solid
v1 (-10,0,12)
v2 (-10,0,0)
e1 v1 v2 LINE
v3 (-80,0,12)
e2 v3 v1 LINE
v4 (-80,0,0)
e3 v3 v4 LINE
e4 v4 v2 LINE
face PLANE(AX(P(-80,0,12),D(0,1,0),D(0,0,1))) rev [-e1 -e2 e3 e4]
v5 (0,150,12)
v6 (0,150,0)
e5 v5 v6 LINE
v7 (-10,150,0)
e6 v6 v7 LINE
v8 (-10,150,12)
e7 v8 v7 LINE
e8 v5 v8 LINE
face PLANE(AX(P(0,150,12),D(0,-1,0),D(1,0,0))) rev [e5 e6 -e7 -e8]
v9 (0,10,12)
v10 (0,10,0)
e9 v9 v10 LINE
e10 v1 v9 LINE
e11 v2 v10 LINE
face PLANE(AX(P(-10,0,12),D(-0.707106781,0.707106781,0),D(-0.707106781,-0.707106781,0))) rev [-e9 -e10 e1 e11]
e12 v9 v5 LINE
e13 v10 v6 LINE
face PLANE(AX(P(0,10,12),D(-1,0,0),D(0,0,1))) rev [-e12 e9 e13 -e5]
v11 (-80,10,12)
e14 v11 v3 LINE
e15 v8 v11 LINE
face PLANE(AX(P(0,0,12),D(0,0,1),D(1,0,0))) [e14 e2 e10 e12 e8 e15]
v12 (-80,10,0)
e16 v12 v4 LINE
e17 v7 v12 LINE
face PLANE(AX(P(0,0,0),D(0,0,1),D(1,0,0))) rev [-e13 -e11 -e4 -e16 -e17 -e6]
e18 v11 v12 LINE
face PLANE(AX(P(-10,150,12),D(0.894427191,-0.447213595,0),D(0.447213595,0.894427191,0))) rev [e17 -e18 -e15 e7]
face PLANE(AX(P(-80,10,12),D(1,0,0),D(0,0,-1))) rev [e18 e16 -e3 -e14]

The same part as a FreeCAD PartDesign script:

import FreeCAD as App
import Part
import Sketcher
from FreeCAD import Vector


def add_polygon(sketch, points):
    """Adds a closed chain of lines whose ends are joined by coincident constraints."""
    first, n = sketch.GeometryCount, len(points)
    for a, b in zip(points, points[1:] + points[:1]):
        sketch.addGeometry(Part.LineSegment(App.Vector(*a, 0), App.Vector(*b, 0)), False)
    for i in range(n):
        sketch.addConstraint(Sketcher.Constraint("Coincident", first + i, 2, first + (i + 1) % n, 1))

doc = App.newDocument("Part")
body = doc.addObject("PartDesign::Body", "Body")

# Sketch on XY plane
sketch1 = body.newObject("Sketcher::SketchObject", "Sketch")
sketch1.AttachmentSupport = (doc.getObject("XY_Plane"), [""])
sketch1.MapMode = "FlatFace"
add_polygon(sketch1, [(-80, 0), (-10, 0), (0, 10), (0, 150), (-10, 150), (-80, 10)])  # lines 0-5
sketch1.addConstraint([
    Sketcher.Constraint("Horizontal", 0),
    Sketcher.Constraint("Vertical", 2),
    Sketcher.Constraint("Horizontal", 3),
    Sketcher.Constraint("Vertical", 5),
    Sketcher.Constraint("PointOnObject", 0, 2, -1),
    Sketcher.Constraint("PointOnObject", 1, 2, -2),
    Sketcher.Constraint("Horizontal", 1, 2, 4, 2),
    Sketcher.Constraint("Vertical", 0, 2, 3, 2),
    Sketcher.Constraint("Equal", 3, 5),
    Sketcher.Constraint("DistanceX", 0, 1, 0, 2, 70.0),
    Sketcher.Constraint("DistanceX", 3, 2, 3, 1, 10.0),
    Sketcher.Constraint("DistanceY", 2, 1, 2, 2, 140.0),
])
pad1 = body.newObject("PartDesign::Pad", "Pad")
pad1.Profile = sketch1
pad1.Length = 12

doc.recompute()
